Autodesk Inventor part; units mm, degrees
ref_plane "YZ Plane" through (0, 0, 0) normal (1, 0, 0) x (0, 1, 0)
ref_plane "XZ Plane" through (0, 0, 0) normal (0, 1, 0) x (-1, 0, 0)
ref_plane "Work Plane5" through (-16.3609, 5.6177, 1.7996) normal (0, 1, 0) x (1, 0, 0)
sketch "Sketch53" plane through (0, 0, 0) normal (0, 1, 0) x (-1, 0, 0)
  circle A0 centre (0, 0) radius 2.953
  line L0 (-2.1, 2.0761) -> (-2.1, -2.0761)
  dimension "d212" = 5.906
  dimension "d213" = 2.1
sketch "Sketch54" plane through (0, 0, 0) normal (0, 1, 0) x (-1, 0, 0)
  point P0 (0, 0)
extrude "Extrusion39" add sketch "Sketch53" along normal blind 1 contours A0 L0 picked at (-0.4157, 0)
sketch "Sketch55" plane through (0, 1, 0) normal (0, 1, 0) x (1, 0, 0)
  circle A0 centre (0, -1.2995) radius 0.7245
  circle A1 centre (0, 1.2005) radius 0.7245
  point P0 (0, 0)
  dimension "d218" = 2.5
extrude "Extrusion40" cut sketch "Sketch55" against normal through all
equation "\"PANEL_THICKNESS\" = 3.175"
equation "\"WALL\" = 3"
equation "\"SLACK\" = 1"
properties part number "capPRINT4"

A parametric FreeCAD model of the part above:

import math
import FreeCAD as App
import Part
import Sketcher

V = App.Vector

doc = App.newDocument("Part")
body = doc.addObject("PartDesign::Body", "Body")

# Sketch on XZ plane
sketch1 = body.newObject("Sketcher::SketchObject", "Sketch")
sketch1.AttachmentSupport = (doc.getObject("XZ_Plane"), [""])
sketch1.MapMode = "FlatFace"
sketch1.addGeometry(Part.ArcOfCircle(Part.Circle(V(0, 0, 0), V(0, 0, 1), 2.953), math.radians(44.672097), math.radians(315.327903)), False)
sketch1.addGeometry(Part.LineSegment(V(2.1, -2.0761, 0), V(2.1, 2.0761, 0)), False)
sketch1.addConstraint(Sketcher.Constraint("Coincident", 0, 1, 1, 2))
sketch1.addConstraint(Sketcher.Constraint("Coincident", 1, 1, 0, 2))
sketch1.addConstraint(Sketcher.Constraint("Vertical", 1))
sketch1.addConstraint(Sketcher.Constraint("Coincident", 0, 3, -1, 1))
sketch1.addConstraint(Sketcher.Constraint("Radius", 0, 2.953))
sketch1.addConstraint(Sketcher.Constraint("DistanceX", -1, 1, 0, 1, 2.1))
pad1 = body.newObject("PartDesign::Pad", "Pad")
pad1.Profile = sketch1
pad1.Length = 1
pad1.Reversed = True

# Sketch on XZ plane
sketch2 = body.newObject("Sketcher::SketchObject", "Sketch001")
sketch2.AttachmentSupport = (doc.getObject("XZ_Plane"), [""])
sketch2.MapMode = "FlatFace"
sketch2.AttachmentOffset = App.Placement(V(0, 0, -1), App.Rotation())
sketch2.addGeometry(Part.Circle(V(0, 1.2995, 0), V(0, 0, 1), 0.7245), False)
sketch2.addGeometry(Part.Circle(V(0, -1.2005, 0), V(0, 0, 1), 0.7245), False)
sketch2.addConstraint(Sketcher.Constraint("Equal", 0, 1))
sketch2.addConstraint(Sketcher.Constraint("PointOnObject", 0, 3, -2))
sketch2.addConstraint(Sketcher.Constraint("PointOnObject", 1, 3, -2))
sketch2.addConstraint(Sketcher.Constraint("DistanceY", 1, 3, 0, 3, 2.5))
sketch2.addConstraint(Sketcher.Constraint("Diameter", 0, 1.449))
sketch2.addConstraint(Sketcher.Constraint("DistanceY", -1, 1, 0, 3, 1.2995))
pocket1 = body.newObject("PartDesign::Pocket", "Pocket")
pocket1.Profile = sketch2
pocket1.Type = "ThroughAll"
pocket1.Reversed = True

doc.recompute()
